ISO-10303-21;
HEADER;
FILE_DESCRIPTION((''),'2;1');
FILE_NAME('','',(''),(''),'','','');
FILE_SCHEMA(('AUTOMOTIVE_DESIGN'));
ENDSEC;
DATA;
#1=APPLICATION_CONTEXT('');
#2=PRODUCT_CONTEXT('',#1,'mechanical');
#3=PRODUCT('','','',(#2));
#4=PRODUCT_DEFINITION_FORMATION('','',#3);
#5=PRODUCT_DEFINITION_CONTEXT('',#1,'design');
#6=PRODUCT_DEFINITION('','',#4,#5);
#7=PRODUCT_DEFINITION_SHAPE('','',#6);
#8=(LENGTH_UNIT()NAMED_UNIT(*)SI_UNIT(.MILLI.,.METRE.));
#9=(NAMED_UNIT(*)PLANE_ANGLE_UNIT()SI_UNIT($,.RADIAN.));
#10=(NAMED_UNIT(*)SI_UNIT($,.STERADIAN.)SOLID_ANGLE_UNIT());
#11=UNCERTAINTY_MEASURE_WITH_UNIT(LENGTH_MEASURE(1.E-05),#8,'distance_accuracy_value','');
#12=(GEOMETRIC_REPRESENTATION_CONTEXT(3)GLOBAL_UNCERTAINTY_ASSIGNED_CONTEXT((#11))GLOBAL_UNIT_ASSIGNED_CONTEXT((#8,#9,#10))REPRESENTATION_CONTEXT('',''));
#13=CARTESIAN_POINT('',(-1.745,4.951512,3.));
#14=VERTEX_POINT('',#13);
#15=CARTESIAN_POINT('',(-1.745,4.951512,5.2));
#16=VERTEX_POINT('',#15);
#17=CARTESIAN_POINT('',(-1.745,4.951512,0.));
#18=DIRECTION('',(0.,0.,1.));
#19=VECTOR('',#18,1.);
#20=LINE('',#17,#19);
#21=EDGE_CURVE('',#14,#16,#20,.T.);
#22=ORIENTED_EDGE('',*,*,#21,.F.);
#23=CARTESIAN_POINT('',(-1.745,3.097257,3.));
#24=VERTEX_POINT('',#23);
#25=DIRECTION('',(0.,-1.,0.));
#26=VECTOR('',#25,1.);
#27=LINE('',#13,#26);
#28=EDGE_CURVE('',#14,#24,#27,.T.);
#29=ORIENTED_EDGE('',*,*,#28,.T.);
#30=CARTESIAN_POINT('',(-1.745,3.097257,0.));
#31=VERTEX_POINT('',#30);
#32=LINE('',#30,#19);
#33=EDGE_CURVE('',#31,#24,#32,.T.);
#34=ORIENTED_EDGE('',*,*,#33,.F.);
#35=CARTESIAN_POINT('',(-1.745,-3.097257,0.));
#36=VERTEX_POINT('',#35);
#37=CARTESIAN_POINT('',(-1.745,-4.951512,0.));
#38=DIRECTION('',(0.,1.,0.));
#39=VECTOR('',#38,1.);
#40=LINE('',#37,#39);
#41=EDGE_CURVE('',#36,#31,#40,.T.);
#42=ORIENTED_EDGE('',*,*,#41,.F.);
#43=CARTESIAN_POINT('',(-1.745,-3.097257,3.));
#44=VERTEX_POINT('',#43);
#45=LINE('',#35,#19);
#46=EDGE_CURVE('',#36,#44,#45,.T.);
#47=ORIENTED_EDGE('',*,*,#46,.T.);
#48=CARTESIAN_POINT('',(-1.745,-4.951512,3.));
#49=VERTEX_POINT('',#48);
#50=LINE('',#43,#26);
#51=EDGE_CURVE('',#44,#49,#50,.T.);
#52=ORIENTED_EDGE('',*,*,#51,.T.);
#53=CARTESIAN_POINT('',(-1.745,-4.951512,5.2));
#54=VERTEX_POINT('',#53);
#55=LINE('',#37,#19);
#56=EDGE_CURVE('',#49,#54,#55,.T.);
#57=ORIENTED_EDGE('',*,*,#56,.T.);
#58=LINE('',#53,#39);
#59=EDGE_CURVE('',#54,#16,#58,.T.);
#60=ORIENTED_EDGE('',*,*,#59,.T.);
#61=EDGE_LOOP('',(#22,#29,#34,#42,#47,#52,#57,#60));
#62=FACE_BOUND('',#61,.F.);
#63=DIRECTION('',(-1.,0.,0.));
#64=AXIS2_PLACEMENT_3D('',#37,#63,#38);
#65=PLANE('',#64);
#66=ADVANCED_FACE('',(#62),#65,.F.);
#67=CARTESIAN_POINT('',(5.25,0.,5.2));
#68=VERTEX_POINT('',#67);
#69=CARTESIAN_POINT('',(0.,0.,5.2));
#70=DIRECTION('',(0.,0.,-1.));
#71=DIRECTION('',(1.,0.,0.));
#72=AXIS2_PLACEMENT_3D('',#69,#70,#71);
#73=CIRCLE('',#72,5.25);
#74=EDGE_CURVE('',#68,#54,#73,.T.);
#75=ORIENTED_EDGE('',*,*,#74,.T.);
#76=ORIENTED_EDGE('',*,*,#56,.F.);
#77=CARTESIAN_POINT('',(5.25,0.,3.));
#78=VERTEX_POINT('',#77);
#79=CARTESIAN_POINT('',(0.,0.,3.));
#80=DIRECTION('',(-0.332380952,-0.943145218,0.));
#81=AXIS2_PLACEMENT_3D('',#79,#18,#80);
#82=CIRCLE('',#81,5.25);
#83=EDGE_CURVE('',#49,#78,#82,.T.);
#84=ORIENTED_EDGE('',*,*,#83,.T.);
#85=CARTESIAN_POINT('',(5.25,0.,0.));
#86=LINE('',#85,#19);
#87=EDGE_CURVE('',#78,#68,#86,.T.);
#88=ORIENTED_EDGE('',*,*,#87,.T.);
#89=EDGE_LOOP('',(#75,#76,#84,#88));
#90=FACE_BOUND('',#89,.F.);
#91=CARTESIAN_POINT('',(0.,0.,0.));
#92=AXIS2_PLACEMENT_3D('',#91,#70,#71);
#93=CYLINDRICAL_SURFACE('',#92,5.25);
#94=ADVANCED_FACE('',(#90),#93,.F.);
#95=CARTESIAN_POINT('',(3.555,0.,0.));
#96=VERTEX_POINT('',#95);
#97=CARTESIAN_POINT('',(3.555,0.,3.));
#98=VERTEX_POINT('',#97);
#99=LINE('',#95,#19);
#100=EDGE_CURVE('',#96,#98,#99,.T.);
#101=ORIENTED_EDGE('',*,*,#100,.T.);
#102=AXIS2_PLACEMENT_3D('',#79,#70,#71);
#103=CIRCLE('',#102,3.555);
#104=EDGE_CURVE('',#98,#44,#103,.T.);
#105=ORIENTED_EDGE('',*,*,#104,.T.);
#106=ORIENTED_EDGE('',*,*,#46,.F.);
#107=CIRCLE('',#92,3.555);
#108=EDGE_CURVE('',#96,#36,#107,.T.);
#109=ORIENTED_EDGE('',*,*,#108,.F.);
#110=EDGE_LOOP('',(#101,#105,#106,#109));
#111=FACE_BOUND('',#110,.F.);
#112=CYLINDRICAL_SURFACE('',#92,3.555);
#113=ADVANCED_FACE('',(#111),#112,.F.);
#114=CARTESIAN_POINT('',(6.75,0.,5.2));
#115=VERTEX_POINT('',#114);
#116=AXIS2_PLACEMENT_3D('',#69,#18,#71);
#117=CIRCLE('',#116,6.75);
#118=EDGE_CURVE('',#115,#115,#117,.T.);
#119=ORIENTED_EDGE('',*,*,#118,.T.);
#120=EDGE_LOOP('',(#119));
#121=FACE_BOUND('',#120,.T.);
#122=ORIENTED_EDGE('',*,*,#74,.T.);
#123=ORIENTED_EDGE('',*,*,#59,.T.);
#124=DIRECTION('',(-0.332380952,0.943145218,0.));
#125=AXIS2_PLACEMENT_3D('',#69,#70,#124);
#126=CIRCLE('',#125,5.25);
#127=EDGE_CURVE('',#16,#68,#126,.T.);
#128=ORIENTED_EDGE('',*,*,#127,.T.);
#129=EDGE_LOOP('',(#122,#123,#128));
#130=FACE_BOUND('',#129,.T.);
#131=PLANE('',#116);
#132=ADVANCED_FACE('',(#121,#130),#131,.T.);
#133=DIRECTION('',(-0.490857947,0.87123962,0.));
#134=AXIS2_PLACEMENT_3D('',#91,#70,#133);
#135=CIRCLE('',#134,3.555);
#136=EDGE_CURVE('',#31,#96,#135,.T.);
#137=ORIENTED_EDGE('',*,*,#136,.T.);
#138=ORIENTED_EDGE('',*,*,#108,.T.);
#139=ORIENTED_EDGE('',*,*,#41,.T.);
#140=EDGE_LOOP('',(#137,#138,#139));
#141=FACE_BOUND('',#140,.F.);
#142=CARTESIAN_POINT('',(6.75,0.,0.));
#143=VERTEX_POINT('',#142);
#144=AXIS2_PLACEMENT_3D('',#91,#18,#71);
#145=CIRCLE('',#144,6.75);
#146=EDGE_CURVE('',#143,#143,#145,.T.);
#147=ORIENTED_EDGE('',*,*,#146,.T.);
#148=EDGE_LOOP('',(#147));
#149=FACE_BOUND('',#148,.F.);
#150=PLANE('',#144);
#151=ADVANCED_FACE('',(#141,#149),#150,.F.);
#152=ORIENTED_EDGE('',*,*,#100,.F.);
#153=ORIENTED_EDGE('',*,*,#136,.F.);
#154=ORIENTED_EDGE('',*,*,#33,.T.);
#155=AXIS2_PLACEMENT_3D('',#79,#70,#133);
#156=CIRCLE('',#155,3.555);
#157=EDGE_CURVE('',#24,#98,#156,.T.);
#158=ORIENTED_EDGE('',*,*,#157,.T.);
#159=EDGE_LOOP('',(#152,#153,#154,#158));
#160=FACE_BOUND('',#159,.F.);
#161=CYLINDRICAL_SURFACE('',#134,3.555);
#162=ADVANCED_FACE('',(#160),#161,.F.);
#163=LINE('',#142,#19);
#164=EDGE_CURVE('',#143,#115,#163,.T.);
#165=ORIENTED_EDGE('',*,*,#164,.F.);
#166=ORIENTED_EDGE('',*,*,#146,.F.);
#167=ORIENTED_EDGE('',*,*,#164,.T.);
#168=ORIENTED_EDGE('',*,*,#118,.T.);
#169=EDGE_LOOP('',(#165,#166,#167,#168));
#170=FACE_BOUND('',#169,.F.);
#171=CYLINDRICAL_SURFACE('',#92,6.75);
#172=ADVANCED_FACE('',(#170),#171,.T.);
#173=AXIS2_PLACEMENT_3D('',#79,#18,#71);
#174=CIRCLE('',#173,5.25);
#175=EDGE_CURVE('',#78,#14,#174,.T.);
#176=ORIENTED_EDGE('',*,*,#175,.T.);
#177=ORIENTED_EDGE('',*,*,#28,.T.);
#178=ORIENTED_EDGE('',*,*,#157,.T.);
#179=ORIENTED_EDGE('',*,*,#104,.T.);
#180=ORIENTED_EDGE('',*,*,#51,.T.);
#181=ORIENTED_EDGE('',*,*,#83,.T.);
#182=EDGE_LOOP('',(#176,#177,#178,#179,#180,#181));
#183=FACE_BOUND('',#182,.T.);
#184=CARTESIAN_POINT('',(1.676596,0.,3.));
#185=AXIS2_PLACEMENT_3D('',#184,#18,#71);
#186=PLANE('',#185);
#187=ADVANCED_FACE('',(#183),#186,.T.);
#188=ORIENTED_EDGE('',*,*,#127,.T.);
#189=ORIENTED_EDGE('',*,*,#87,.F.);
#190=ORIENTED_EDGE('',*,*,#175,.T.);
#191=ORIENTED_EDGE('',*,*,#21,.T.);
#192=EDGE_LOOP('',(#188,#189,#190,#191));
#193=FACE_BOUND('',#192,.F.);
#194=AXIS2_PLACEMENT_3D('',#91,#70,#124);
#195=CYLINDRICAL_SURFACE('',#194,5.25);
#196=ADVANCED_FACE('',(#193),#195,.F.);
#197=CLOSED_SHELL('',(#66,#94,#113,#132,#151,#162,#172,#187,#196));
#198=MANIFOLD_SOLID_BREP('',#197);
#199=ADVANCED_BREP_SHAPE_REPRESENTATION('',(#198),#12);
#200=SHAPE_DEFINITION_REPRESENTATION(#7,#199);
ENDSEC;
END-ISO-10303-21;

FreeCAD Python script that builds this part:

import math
import FreeCAD as App
import Part
import Sketcher
Q = App.Units.Quantity

doc = App.newDocument("Part")
body = doc.addObject("PartDesign::Body", "Body")

sketch1 = doc.addObject("Sketcher::SketchObject", "Sketch")
body.addObject(sketch1)
sketch1.AttachmentSupport = (doc.XY_Plane, [""])
sketch1.MapMode = "FlatFace"
sketch1.addGeometry(Part.ArcOfCircle(Part.Circle(App.Vector(0, 0, 0), App.Vector(0, 0, 1), 3.6), math.radians(0), math.radians(119)), False)
sketch1.addGeometry(Part.ArcOfCircle(Part.Circle(App.Vector(0, 0, 0), App.Vector(0, 0, 1), 3.6), math.radians(-119), math.radians(0)), False)
sketch1.addGeometry(Part.LineSegment(App.Vector(-1.7, -3.1, 0), App.Vector(-1.7, -5, 0)), False)
sketch1.addGeometry(Part.ArcOfCircle(Part.Circle(App.Vector(0, 0, 0), App.Vector(0, 0, 1), 5.2), math.radians(-109), math.radians(0)), False)
sketch1.addGeometry(Part.ArcOfCircle(Part.Circle(App.Vector(0, 0, 0), App.Vector(0, 0, 1), 5.2), math.radians(0), math.radians(109)), False)
sketch1.addGeometry(Part.LineSegment(App.Vector(-1.7, 5, 0), App.Vector(-1.7, 3.1, 0)), False)
sketch1.addConstraint(Sketcher.Constraint("Tangent", 0, 1, 1, 2))
sketch1.addConstraint(Sketcher.Constraint("Coincident", 1, 1, 2, 1))
sketch1.addConstraint(Sketcher.Constraint("Coincident", 2, 2, 3, 1))
sketch1.addConstraint(Sketcher.Constraint("Tangent", 3, 2, 4, 1))
sketch1.addConstraint(Sketcher.Constraint("Coincident", 4, 2, 5, 1))
sketch1.addConstraint(Sketcher.Constraint("Coincident", 5, 2, 0, 2))
sketch1.addConstraint(Sketcher.Constraint("Vertical", 2))
sketch1.addConstraint(Sketcher.Constraint("Vertical", 5))
sketch1.addConstraint(Sketcher.Constraint("Coincident", 0, 3, -1, 1))
sketch1.addConstraint(Sketcher.Constraint("Coincident", 3, 3, -1, 1))
sketch1.addConstraint(Sketcher.Constraint("Equal", 0, 1))
sketch1.addConstraint(Sketcher.Constraint("Equal", 3, 4))
sketch1.addConstraint(Sketcher.Constraint("PointOnObject", 0, 1, -1))
sketch1.addConstraint(Sketcher.Constraint("PointOnObject", 3, 2, -1))
sketch1.addConstraint(Sketcher.Constraint("Vertical", 2, 2, 4, 2))
sketch1.addConstraint(Sketcher.Constraint("Radius", 3, Q("5.25 mm")))
sketch1.addConstraint(Sketcher.Constraint("Radius", 0, Q("3.555 mm")))
sketch1.addConstraint(Sketcher.Constraint("DistanceX", 1, 1, 0, 1, Q("5.3 mm")))
pad1 = doc.addObject("PartDesign::Pad", "Pad")
body.addObject(pad1)
pad1.Profile = sketch1
pad1.Length = 3

sketch2 = doc.addObject("Sketcher::SketchObject", "Sketch001")
body.addObject(sketch2)
sketch2.AttachmentSupport = (doc.XY_Plane, [""])
sketch2.MapMode = "FlatFace"
sketch2.addGeometry(Part.Circle(App.Vector(0, 0, 0), App.Vector(0, 0, 1), 7), False)
sketch2.addGeometry(Part.ArcOfCircle(Part.Circle(App.Vector(0, 0, 0), App.Vector(0, 0, 1), 5), math.radians(-109), math.radians(0)), False)
sketch2.addGeometry(Part.LineSegment(App.Vector(-2, -5, 0), App.Vector(-2, 5, 0)), False)
sketch2.addGeometry(Part.ArcOfCircle(Part.Circle(App.Vector(0, 0, 0), App.Vector(0, 0, 1), 5), math.radians(0), math.radians(109)), False)
sketch2.addConstraint(Sketcher.Constraint("Coincident", 1, 1, 2, 1))
sketch2.addConstraint(Sketcher.Constraint("Coincident", 2, 2, 3, 2))
sketch2.addConstraint(Sketcher.Constraint("Tangent", 3, 1, 1, 2))
sketch2.addConstraint(Sketcher.Constraint("Vertical", 2))
sketch2.addConstraint(Sketcher.Constraint("Coincident", 0, 3, -1, 1))
sketch2.addConstraint(Sketcher.Constraint("Coincident", 1, 3, -1, 1))
sketch2.addConstraint(Sketcher.Constraint("Equal", 1, 3))
sketch2.addConstraint(Sketcher.Constraint("PointOnObject", 3, 1, -1))
sketch2.addConstraint(Sketcher.Constraint("Diameter", 0, Q("13.5 mm")))
sketch2.addConstraint(Sketcher.Constraint("Radius", 1, Q("5.25 mm")))
sketch2.addConstraint(Sketcher.Constraint("DistanceX", 1, 1, -1, 1, Q("1.745 mm")))
pad2 = doc.addObject("PartDesign::Pad", "Pad001")
body.addObject(pad2)
pad2.Profile = sketch2
pad2.Length = 5.2

doc.recompute()
